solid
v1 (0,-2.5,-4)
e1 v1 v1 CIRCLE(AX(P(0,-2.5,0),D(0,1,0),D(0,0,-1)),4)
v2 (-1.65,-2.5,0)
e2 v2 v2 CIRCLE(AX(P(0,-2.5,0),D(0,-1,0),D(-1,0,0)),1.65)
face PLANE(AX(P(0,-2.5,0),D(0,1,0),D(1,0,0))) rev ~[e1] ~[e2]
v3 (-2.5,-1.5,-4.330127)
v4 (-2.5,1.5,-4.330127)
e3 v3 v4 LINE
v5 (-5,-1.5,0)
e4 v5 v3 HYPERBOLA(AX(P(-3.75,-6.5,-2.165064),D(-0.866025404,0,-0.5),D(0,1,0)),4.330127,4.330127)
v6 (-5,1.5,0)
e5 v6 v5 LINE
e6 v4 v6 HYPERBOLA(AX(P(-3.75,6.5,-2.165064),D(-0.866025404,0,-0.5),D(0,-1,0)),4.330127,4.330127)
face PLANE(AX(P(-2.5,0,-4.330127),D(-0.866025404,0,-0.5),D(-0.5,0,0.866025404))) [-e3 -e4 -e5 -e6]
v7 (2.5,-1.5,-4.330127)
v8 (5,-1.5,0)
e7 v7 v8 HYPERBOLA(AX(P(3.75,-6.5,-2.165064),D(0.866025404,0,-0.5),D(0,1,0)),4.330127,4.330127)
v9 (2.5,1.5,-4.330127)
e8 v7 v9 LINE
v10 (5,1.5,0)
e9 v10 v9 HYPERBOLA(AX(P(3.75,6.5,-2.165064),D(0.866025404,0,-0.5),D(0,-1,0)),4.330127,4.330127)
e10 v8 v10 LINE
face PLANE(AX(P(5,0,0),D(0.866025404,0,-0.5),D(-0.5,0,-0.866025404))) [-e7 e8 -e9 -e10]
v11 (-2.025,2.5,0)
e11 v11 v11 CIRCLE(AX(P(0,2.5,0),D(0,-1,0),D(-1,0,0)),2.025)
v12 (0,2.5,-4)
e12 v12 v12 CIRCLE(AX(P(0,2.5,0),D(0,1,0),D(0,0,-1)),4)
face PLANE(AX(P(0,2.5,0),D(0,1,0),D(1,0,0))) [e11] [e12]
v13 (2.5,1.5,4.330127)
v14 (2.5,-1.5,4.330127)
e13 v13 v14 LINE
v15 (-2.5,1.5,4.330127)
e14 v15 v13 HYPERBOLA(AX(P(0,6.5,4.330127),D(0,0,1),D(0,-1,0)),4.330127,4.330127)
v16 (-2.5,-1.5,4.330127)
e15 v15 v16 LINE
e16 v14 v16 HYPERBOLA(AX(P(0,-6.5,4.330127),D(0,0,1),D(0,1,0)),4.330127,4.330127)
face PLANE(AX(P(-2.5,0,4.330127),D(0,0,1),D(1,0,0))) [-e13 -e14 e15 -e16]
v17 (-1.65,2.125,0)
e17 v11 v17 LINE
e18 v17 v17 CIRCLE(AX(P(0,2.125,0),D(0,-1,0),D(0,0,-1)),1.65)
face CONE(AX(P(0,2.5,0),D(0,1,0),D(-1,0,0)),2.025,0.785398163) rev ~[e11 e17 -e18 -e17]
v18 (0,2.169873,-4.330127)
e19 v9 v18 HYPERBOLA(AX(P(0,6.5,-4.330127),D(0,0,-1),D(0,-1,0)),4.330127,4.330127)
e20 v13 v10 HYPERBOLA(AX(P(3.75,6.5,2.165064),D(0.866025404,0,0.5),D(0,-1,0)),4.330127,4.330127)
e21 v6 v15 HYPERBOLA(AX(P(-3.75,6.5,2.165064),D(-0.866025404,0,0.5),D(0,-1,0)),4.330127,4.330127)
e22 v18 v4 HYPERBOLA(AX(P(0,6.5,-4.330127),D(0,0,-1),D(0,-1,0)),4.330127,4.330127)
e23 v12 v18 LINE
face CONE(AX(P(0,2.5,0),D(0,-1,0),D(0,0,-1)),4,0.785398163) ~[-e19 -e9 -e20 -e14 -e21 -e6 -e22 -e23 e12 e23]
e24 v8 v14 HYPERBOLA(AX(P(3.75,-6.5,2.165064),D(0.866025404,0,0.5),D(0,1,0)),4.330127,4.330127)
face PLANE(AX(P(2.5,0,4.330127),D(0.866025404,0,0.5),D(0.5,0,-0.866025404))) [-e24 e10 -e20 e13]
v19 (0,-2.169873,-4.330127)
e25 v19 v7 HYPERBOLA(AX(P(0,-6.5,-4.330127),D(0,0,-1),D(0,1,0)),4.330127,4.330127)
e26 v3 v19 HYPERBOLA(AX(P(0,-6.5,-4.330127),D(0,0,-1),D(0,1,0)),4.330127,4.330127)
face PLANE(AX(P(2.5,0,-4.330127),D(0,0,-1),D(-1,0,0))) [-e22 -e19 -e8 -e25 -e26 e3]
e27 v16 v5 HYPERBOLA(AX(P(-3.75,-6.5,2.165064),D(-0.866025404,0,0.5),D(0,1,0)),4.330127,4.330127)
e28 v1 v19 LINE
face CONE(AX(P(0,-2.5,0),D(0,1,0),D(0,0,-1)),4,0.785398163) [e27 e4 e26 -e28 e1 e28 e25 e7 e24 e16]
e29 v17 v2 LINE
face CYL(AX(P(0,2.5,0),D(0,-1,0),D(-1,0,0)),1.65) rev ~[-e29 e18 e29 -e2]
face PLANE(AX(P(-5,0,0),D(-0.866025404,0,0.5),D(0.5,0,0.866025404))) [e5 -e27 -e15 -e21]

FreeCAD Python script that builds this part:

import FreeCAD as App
import Part
import Sketcher

V = App.Vector
Q = App.Units.Quantity


def add_polygon(sketch, points):
    """Adds a closed chain of lines whose ends are joined by coincident constraints."""
    first, n = sketch.GeometryCount, len(points)
    for a, b in zip(points, points[1:] + points[:1]):
        sketch.addGeometry(Part.LineSegment(App.Vector(*a, 0), App.Vector(*b, 0)), False)
    for i in range(n):
        sketch.addConstraint(Sketcher.Constraint("Coincident", first + i, 2, first + (i + 1) % n, 1))

doc = App.newDocument("Part")
params = doc.addObject("Spreadsheet::Sheet", "Params")
for row, (alias, value) in enumerate([
    ("sketch1_width", "5 mm"),
    ("sketch1_length", "5 mm"),
    ("pad1_length", "5 mm"),
    ("sketch2_width", "1 mm"),
    ("groove_angle", "360 deg"),
    ("sketch3_diameter", "3.3 mm"),
    ("hole_diameter", "3.3 mm"),
    ("hole_depth", "9.10858 mm"),
    ("hole_csink_diameter", "4.05 mm"),
], start=1):
    params.set(f"A{row}", alias)
    params.set(f"B{row}", "=" + value)
    params.setAlias(f"B{row}", alias)

body = doc.addObject("PartDesign::Body", "Body")

sketch1 = body.newObject("Sketcher::SketchObject", "Sketch")
sketch1.AttachmentSupport = (doc.getObject("XZ_Plane"), [""])
sketch1.MapMode = "FlatFace"
add_polygon(sketch1, [(2, 4), (5, 0), (2, -4), (-2, -4), (-5, 0), (-2, 4)])
sketch1.addConstraint([
    Sketcher.Constraint("Horizontal", 2),
    Sketcher.Constraint("Horizontal", 5),
    Sketcher.Constraint("Symmetric", 0, 2, 3, 2, -1, 1),
    Sketcher.Constraint("Symmetric", 1, 2, 4, 2, -1, 1),
    Sketcher.Constraint("PointOnObject", 0, 2, -1),
    Sketcher.Constraint("Parallel", 0, 3),
    Sketcher.Constraint("Vertical", 2, 2, 4, 2),
    Sketcher.Constraint("DistanceX", 2, 2, 2, 1, 5.0),
    Sketcher.Constraint("Angle", 0, Q("-60 deg")),
    Sketcher.Constraint("Distance", 0, 5.0),
])
sketch1.setExpression("Constraints[13]", "Params.sketch1_width")
sketch1.setExpression("Constraints[15]", "Params.sketch1_length")
pad1 = body.newObject("PartDesign::Pad", "Pad")
pad1.Profile = sketch1
pad1.setExpression("Length", "Params.pad1_length")
pad1.Midplane = True

sketch2 = body.newObject("Sketcher::SketchObject", "Sketch001")
sketch2.AttachmentSupport = (doc.getObject("XY_Plane"), [""])
sketch2.MapMode = "FlatFace"
add_polygon(sketch2, [(4, 2.5), (5, 1.5), (5, 2.5)])
sketch2.addConstraint([
    Sketcher.Constraint("Vertical", 1),
    Sketcher.Constraint("Horizontal", 2),
    Sketcher.Constraint("Equal", 2, 1),
    Sketcher.Constraint("DistanceX", 2, 2, 2, 1, 1.0),
    Sketcher.Constraint("DistanceX", -1, 1, 0, 2, 5.0),
    Sketcher.Constraint("DistanceY", -1, 1, 0, 2, 1.5),
])
sketch2.setExpression("Constraints[6]", "Params.sketch2_width")
groove = body.newObject("PartDesign::Groove", "Groove")
groove.Profile = sketch2
groove.ReferenceAxis = (sketch2, ["V_Axis"])
groove.setExpression("Angle", "Params.groove_angle")
doc.recompute()

mirrored = body.newObject("PartDesign::Mirrored", "Mirrored")
mirrored.Originals = [groove]
mirrored.MirrorPlane = (doc.getObject("XZ_Plane"), [""])
body.Tip = mirrored

sketch3 = body.newObject("Sketcher::SketchObject", "Sketch002")
sketch3.AttachmentSupport = (doc.getObject("XZ_Plane"), [""])
sketch3.MapMode = "FlatFace"
sketch3.AttachmentOffset = App.Placement(V(0, 0, -2.5), App.Rotation())
sketch3.addGeometry(Part.Circle(V(0, 0, 0), V(0, 0, 1), 1.6), False)
sketch3.addConstraint([
    Sketcher.Constraint("Coincident", 0, 3, -1, 1),
    Sketcher.Constraint("Diameter", 0, 3.3),
])
sketch3.setExpression("Constraints[1]", "Params.sketch3_diameter")
doc.recompute()
hole = body.newObject("PartDesign::Hole", "Hole")
hole.Profile = sketch3
hole.ThreadType = "None"
hole.setExpression("Diameter", "Params.hole_diameter")
hole.DepthType = "Dimension"
hole.setExpression("Depth", "Params.hole_depth")
hole.DrillPoint = "Angled"
hole.DrillPointAngle = 118
hole.HoleCutType = "Countersink"
hole.setExpression("HoleCutDiameter", "Params.hole_csink_diameter")
hole.HoleCutCountersinkAngle = 90
hole.Reversed = True

doc.recompute()
